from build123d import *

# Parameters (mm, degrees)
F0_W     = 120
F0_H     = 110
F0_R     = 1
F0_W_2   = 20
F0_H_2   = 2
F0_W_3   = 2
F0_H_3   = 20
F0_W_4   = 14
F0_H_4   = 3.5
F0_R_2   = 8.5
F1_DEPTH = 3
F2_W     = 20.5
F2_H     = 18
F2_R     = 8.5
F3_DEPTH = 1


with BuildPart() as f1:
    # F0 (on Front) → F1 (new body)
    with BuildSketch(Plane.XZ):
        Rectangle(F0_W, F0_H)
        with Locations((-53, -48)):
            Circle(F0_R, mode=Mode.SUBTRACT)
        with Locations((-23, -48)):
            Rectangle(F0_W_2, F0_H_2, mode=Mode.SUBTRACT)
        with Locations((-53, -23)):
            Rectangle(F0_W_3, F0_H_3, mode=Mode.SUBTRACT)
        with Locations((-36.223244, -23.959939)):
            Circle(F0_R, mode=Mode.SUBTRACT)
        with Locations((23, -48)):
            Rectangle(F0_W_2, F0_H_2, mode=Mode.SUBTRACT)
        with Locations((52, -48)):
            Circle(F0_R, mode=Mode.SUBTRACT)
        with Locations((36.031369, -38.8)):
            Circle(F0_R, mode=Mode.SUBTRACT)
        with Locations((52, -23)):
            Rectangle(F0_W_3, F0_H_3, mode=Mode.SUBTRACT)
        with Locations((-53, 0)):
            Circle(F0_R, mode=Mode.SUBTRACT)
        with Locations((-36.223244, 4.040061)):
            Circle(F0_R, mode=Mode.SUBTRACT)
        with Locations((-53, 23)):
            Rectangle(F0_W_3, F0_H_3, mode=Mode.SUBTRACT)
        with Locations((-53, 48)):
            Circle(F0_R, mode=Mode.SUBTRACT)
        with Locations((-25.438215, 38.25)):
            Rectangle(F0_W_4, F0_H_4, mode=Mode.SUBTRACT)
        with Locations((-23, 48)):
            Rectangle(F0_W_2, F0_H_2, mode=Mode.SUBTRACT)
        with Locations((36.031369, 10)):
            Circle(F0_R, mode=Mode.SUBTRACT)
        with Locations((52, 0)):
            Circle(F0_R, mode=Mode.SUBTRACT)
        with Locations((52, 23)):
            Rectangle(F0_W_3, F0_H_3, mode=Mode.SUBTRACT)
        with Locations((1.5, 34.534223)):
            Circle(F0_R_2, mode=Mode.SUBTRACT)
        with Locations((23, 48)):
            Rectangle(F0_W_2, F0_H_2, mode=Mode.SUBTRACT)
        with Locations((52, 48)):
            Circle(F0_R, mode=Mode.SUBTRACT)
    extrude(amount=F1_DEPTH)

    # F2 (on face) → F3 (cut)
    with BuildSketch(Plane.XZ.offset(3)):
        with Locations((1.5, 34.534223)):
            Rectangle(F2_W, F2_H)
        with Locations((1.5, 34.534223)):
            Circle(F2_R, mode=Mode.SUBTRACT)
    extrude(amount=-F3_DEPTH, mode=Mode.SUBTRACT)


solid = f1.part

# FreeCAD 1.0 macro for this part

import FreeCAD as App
import Part
import Sketcher


def add_polygon(sketch, points):
    """Adds a closed chain of lines whose ends are joined by coincident constraints."""
    first, n = sketch.GeometryCount, len(points)
    for a, b in zip(points, points[1:] + points[:1]):
        sketch.addGeometry(Part.LineSegment(App.Vector(*a, 0), App.Vector(*b, 0)), False)
    for i in range(n):
        sketch.addConstraint(Sketcher.Constraint("Coincident", first + i, 2, first + (i + 1) % n, 1))

doc = App.newDocument("Part")
params = doc.addObject("Spreadsheet::Sheet", "Params")
for row, (alias, value) in enumerate([
    ("sketch1_diameter", "2 mm"),
    ("sketch1_diameter2", "17 mm"),
    ("sketch1_width", "120 mm"),
    ("sketch1_width2", "20 mm"),
    ("sketch1_width3", "2 mm"),
    ("pad1_length", "3 mm"),
    ("sketch2_diameter", "17 mm"),
    ("sketch2_height", "18 mm"),
    ("sketch2_width", "20.5 mm"),
    ("pocket1_length", "1 mm"),
], start=1):
    params.set(f"A{row}", alias)
    params.set(f"B{row}", "=" + value)
    params.setAlias(f"B{row}", alias)

body = doc.addObject("PartDesign::Body", "Body")

# Sketch on XZ plane
sketch1 = doc.addObject("Sketcher::SketchObject", "Sketch")
body.addObject(sketch1)
sketch1.AttachmentSupport = (doc.XZ_Plane, [""])
sketch1.MapMode = "FlatFace"
add_polygon(sketch1, [(-60, 55), (-60, -55), (60, -55), (60, 55)])  # lines 0-3
sketch1.addGeometry(Part.Circle(App.Vector(-53, -48, 0), App.Vector(0, 0, 1), 1), False)  # 4
add_polygon(sketch1, [(-13, -49), (-33, -49), (-33, -47), (-13, -47)])  # lines 5-8
add_polygon(sketch1, [(-52, -33), (-54, -33), (-54, -13), (-52, -13)])  # lines 9-12
sketch1.addGeometry(Part.Circle(App.Vector(-36.2, -24, 0), App.Vector(0, 0, 1), 1), False)  # 13
sketch1.addGeometry(Part.Circle(App.Vector(-53, 0, 0), App.Vector(0, 0, 1), 1), False)  # 14
add_polygon(sketch1, [(33, -49), (13, -49), (13, -47), (33, -47)])  # lines 15-18
sketch1.addGeometry(Part.Circle(App.Vector(36, -38.8, 0), App.Vector(0, 0, 1), 1), False)  # 19
sketch1.addGeometry(Part.Circle(App.Vector(52, -48, 0), App.Vector(0, 0, 1), 1), False)  # 20
add_polygon(sketch1, [(53, -33), (51, -33), (51, -13), (53, -13)])  # lines 21-24
sketch1.addGeometry(Part.Circle(App.Vector(52, 0, 0), App.Vector(0, 0, 1), 1), False)  # 25
sketch1.addGeometry(Part.Circle(App.Vector(-36.2, 4, 0), App.Vector(0, 0, 1), 1), False)  # 26
add_polygon(sketch1, [(-52, 13), (-54, 13), (-54, 33), (-52, 33)])  # lines 27-30
sketch1.addGeometry(Part.Circle(App.Vector(-53, 48, 0), App.Vector(0, 0, 1), 1), False)  # 31
add_polygon(sketch1, [(-18.4, 36.5), (-32.4, 36.5), (-32.4, 40), (-18.4, 40)])  # lines 32-35
add_polygon(sketch1, [(-13, 47), (-33, 47), (-33, 49), (-13, 49)])  # lines 36-39
sketch1.addGeometry(Part.Circle(App.Vector(36, 10, 0), App.Vector(0, 0, 1), 1), False)  # 40
add_polygon(sketch1, [(53, 13), (51, 13), (51, 33), (53, 33)])  # lines 41-44
sketch1.addGeometry(Part.Circle(App.Vector(1.5, 34.5, 0), App.Vector(0, 0, 1), 8.5), False)  # 45
add_polygon(sketch1, [(33, 47), (13, 47), (13, 49), (33, 49)])  # lines 46-49
sketch1.addGeometry(Part.Circle(App.Vector(52, 48, 0), App.Vector(0, 0, 1), 1), False)  # 50
sketch1.addConstraint([
    Sketcher.Constraint("Vertical", 0),
    Sketcher.Constraint("Horizontal", 1),
    Sketcher.Constraint("Vertical", 2),
    Sketcher.Constraint("Horizontal", 3),
    Sketcher.Constraint("Horizontal", 5),
    Sketcher.Constraint("Vertical", 6),
    Sketcher.Constraint("Horizontal", 7),
    Sketcher.Constraint("Vertical", 8),
    Sketcher.Constraint("Horizontal", 9),
    Sketcher.Constraint("Vertical", 10),
    Sketcher.Constraint("Horizontal", 11),
    Sketcher.Constraint("Vertical", 12),
    Sketcher.Constraint("Horizontal", 15),
    Sketcher.Constraint("Vertical", 16),
    Sketcher.Constraint("Horizontal", 17),
    Sketcher.Constraint("Vertical", 18),
    Sketcher.Constraint("Horizontal", 21),
    Sketcher.Constraint("Vertical", 22),
    Sketcher.Constraint("Horizontal", 23),
    Sketcher.Constraint("Vertical", 24),
    Sketcher.Constraint("Horizontal", 27),
    Sketcher.Constraint("Vertical", 28),
    Sketcher.Constraint("Horizontal", 29),
    Sketcher.Constraint("Vertical", 30),
    Sketcher.Constraint("Horizontal", 32),
    Sketcher.Constraint("Vertical", 33),
    Sketcher.Constraint("Horizontal", 34),
    Sketcher.Constraint("Vertical", 35),
    Sketcher.Constraint("Horizontal", 36),
    Sketcher.Constraint("Vertical", 37),
    Sketcher.Constraint("Horizontal", 38),
    Sketcher.Constraint("Vertical", 39),
    Sketcher.Constraint("Horizontal", 41),
    Sketcher.Constraint("Vertical", 42),
    Sketcher.Constraint("Horizontal", 43),
    Sketcher.Constraint("Vertical", 44),
    Sketcher.Constraint("Horizontal", 46),
    Sketcher.Constraint("Vertical", 47),
    Sketcher.Constraint("Horizontal", 48),
    Sketcher.Constraint("Vertical", 49),
    Sketcher.Constraint("Equal", 4, 13),
    Sketcher.Constraint("Equal", 13, 14),
    Sketcher.Constraint("Equal", 14, 19),
    Sketcher.Constraint("Equal", 19, 20),
    Sketcher.Constraint("Equal", 20, 25),
    Sketcher.Constraint("Equal", 25, 26),
    Sketcher.Constraint("Equal", 26, 31),
    Sketcher.Constraint("Equal", 31, 40),
    Sketcher.Constraint("Equal", 40, 50),
    Sketcher.Constraint("Symmetric", 0, 2, 2, 2, -1, 1),
    Sketcher.Constraint("Symmetric", 17, 2, 36, 2, -1, 1),
    Sketcher.Constraint("Symmetric", 15, 2, 38, 2, -1, 1),
    Sketcher.Constraint("Symmetric", 7, 2, 46, 2, -1, 1),
    Sketcher.Constraint("Symmetric", 5, 2, 48, 2, -1, 1),
    Sketcher.Constraint("Symmetric", 8, 2, 15, 2, -2),
    Sketcher.Constraint("Symmetric", 6, 2, 17, 2, -2),
    Sketcher.Constraint("Symmetric", 4, 3, 31, 3, -1),
    Sketcher.Constraint("Symmetric", 20, 3, 50, 3, -1),
    Sketcher.Constraint("Symmetric", 10, 2, 27, 2, -1),
    Sketcher.Constraint("Symmetric", 12, 2, 29, 2, -1),
    Sketcher.Constraint("Symmetric", 22, 2, 41, 2, -1),
    Sketcher.Constraint("Symmetric", 24, 2, 43, 2, -1),
    Sketcher.Constraint("PointOnObject", 14, 3, -1),
    Sketcher.Constraint("PointOnObject", 25, 3, -1),
    Sketcher.Constraint("Horizontal", 4, 3, 20, 3),
    Sketcher.Constraint("Horizontal", 12, 2, 21, 2),
    Sketcher.Constraint("Horizontal", 11, 2, 22, 2),
    Sketcher.Constraint("Vertical", 4, 3, 14, 3),
    Sketcher.Constraint("Vertical", 20, 3, 25, 3),
    Sketcher.Constraint("Vertical", 13, 3, 26, 3),
    Sketcher.Constraint("Vertical", 19, 3, 40, 3),
    Sketcher.Constraint("Equal", 11, 21),
    Sketcher.Constraint("Equal", 43, 6),
    Sketcher.Constraint("Equal", 48, 10),
    Sketcher.Constraint("Diameter", 4, 2.0),
    Sketcher.Constraint("Diameter", 45, 17.0),
    Sketcher.Constraint("DistanceX", 1, 1, 1, 2, 120.0),
    Sketcher.Constraint("DistanceX", 5, 2, 5, 1, 20.0),
    Sketcher.Constraint("DistanceX", 9, 2, 9, 1, 2.0),
    Sketcher.Constraint("DistanceX", 32, 2, 32, 1, 14.0),
    Sketcher.Constraint("DistanceY", 0, 2, 0, 1, 110.0),
    Sketcher.Constraint("DistanceY", 33, 1, 33, 2, 3.5),
    Sketcher.Constraint("DistanceX", 4, 3, -1, 1, 53.0),
    Sketcher.Constraint("DistanceY", 4, 3, -1, 1, 48.0),
    Sketcher.Constraint("DistanceX", -1, 1, 20, 3, 52.0),
    Sketcher.Constraint("DistanceY", -1, 1, 40, 3, 10.0),
    Sketcher.Constraint("DistanceX", 5, 2, -1, 1, 33.0),
    Sketcher.Constraint("DistanceY", 5, 2, -1, 1, 49.0),
    Sketcher.Constraint("DistanceX", 9, 2, -1, 1, 54.0),
    Sketcher.Constraint("DistanceY", 9, 2, -1, 1, 33.0),
    Sketcher.Constraint("DistanceX", -1, 1, 21, 2, 51.0),
    Sketcher.Constraint("DistanceY", -1, 1, 33, 2, 40.0),
    Sketcher.Constraint("DistanceY", 13, 3, 26, 3, 28.0),
    Sketcher.Constraint("DistanceY", 19, 3, -1, 1, 38.8),
    Sketcher.Constraint("DistanceX", -1, 1, 45, 3, 1.5),
    Sketcher.Constraint("DistanceY", 13, 3, -1, 1, 23.959939),
    Sketcher.Constraint("DistanceX", -1, 1, 19, 3, 36.031369),
    Sketcher.Constraint("DistanceY", 26, 3, 45, 3, 30.494162),
    Sketcher.Constraint("DistanceX", 13, 3, -1, 1, 36.223244),
    Sketcher.Constraint("DistanceX", 32, 2, -1, 1, 32.438215),
])
sketch1.setExpression("Constraints[114]", "Params.sketch1_diameter")
sketch1.setExpression("Constraints[115]", "Params.sketch1_diameter2")
sketch1.setExpression("Constraints[116]", "Params.sketch1_width")
sketch1.setExpression("Constraints[117]", "Params.sketch1_width2")
sketch1.setExpression("Constraints[118]", "Params.sketch1_width3")
pad1 = doc.addObject("PartDesign::Pad", "Pad")
body.addObject(pad1)
pad1.Profile = sketch1
pad1.setExpression("Length", "Params.pad1_length")

# Sketch on XZ plane
sketch2 = doc.addObject("Sketcher::SketchObject", "Sketch001")
body.addObject(sketch2)
sketch2.AttachmentSupport = (doc.XZ_Plane, [""])
sketch2.MapMode = "FlatFace"
sketch2.AttachmentOffset = App.Placement(App.Vector(0, 0, 3), App.Rotation())
add_polygon(sketch2, [(-9, 44), (-9, 26), (12, 26), (12, 44)])  # lines 0-3
sketch2.addGeometry(Part.Circle(App.Vector(2, 35, 0), App.Vector(0, 0, 1), 8), False)  # 4
sketch2.addConstraint([
    Sketcher.Constraint("Vertical", 0),
    Sketcher.Constraint("Horizontal", 1),
    Sketcher.Constraint("Vertical", 2),
    Sketcher.Constraint("Horizontal", 3),
    Sketcher.Constraint("Diameter", 4, 17.0),
    Sketcher.Constraint("DistanceY", 0, 2, 0, 1, 18.0),
    Sketcher.Constraint("DistanceX", 1, 1, 1, 2, 20.5),
    Sketcher.Constraint("DistanceY", 0, 2, 4, 3, 9.0),
    Sketcher.Constraint("DistanceX", -1, 1, 4, 3, 1.5),
    Sketcher.Constraint("DistanceX", 0, 2, -1, 1, 8.75),
    Sketcher.Constraint("DistanceY", -1, 1, 4, 3, 34.534223),
])
sketch2.setExpression("Constraints[8]", "Params.sketch2_diameter")
sketch2.setExpression("Constraints[9]", "Params.sketch2_height")
sketch2.setExpression("Constraints[10]", "Params.sketch2_width")
pocket1 = doc.addObject("PartDesign::Pocket", "Pocket")
body.addObject(pocket1)
pocket1.Profile = sketch2
pocket1.setExpression("Length", "Params.pocket1_length")

doc.recompute()
